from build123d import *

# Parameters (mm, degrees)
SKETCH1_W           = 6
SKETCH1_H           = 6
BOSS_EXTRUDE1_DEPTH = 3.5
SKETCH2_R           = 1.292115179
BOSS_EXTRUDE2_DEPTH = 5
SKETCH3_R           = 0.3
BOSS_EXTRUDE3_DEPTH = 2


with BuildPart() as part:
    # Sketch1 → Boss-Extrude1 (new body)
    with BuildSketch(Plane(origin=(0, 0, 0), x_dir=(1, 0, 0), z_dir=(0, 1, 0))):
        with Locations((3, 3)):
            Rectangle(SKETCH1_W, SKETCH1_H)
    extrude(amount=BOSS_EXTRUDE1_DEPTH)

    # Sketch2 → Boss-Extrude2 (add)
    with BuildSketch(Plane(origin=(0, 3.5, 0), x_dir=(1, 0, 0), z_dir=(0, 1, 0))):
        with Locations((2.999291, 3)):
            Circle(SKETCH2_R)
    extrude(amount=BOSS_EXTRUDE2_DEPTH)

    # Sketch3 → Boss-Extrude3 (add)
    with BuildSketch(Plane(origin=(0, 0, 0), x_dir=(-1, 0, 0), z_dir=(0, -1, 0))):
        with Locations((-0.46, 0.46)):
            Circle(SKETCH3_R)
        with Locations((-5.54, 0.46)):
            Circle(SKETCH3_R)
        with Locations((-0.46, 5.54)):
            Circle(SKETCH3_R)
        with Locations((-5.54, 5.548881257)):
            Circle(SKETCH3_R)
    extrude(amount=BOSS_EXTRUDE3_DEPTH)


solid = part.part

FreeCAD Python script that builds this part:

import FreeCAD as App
import Part
import Sketcher
Q = App.Units.Quantity

doc = App.newDocument("Part")
body = doc.addObject("PartDesign::Body", "Body")

# Sketch on XZ plane
sketch1 = body.newObject("Sketcher::SketchObject", "Sketch")
sketch1.AttachmentSupport = (doc.getObject("XZ_Plane"), [""])
sketch1.MapMode = "FlatFace"
sketch1.addGeometry([
    Part.LineSegment(App.Vector(0, -6, 0), App.Vector(0, 0, 0)),
    Part.LineSegment(App.Vector(0, 0, 0), App.Vector(6, 0, 0)),
    Part.LineSegment(App.Vector(6, 0, 0), App.Vector(6, -6, 0)),
    Part.LineSegment(App.Vector(6, -6, 0), App.Vector(0, -6, 0)),
], False)
sketch1.addConstraint([
    Sketcher.Constraint("Coincident", 0, 2, 1, 1),
    Sketcher.Constraint("Coincident", 1, 2, 2, 1),
    Sketcher.Constraint("Coincident", 2, 2, 3, 1),
    Sketcher.Constraint("Coincident", 3, 2, 0, 1),
    Sketcher.Constraint("Vertical", 0),
    Sketcher.Constraint("Horizontal", 1),
    Sketcher.Constraint("Vertical", 2),
    Sketcher.Constraint("Horizontal", 3),
    Sketcher.Constraint("Coincident", 0, 2, -1, 1),
    Sketcher.Constraint("Equal", 3, 0),
    Sketcher.Constraint("DistanceX", 1, 1, 1, 2, Q("6 mm")),
])
pad1 = body.newObject("PartDesign::Pad", "Pad")
pad1.Profile = sketch1
pad1.Length = 3.5
pad1.Reversed = True

# Sketch on XZ plane
sketch2 = body.newObject("Sketcher::SketchObject", "Sketch001")
sketch2.AttachmentSupport = (doc.getObject("XZ_Plane"), [""])
sketch2.MapMode = "FlatFace"
sketch2.AttachmentOffset = App.Placement(App.Vector(0, 0, -3.5), App.Rotation())
sketch2.addGeometry(Part.Circle(App.Vector(3, -3, 0), App.Vector(0, 0, 1), 1.3), False)
sketch2.addConstraint([
    Sketcher.Constraint("DistanceY", 0, 3, -1, 1, Q("3 mm")),
    Sketcher.Constraint("Diameter", 0, Q("2.58423 mm")),
    Sketcher.Constraint("DistanceX", -1, 1, 0, 3, Q("2.999291 mm")),
])
pad2 = body.newObject("PartDesign::Pad", "Pad001")
pad2.Profile = sketch2
pad2.Length = 5
pad2.Reversed = True

# Sketch on XZ plane
sketch3 = body.newObject("Sketcher::SketchObject", "Sketch002")
sketch3.AttachmentSupport = (doc.getObject("XZ_Plane"), [""])
sketch3.MapMode = "FlatFace"
sketch3.addGeometry([
    Part.Circle(App.Vector(0.46, -0.46, 0), App.Vector(0, 0, 1), 0.3),
    Part.Circle(App.Vector(5.54, -0.46, 0), App.Vector(0, 0, 1), 0.3),
    Part.Circle(App.Vector(0.46, -5.54, 0), App.Vector(0, 0, 1), 0.3),
    Part.Circle(App.Vector(5.54, -5.55, 0), App.Vector(0, 0, 1), 0.3),
], False)
sketch3.addConstraint([
    Sketcher.Constraint("Equal", 0, 1),
    Sketcher.Constraint("Equal", 1, 2),
    Sketcher.Constraint("Equal", 2, 3),
    Sketcher.Constraint("Horizontal", 0, 3, 1, 3),
    Sketcher.Constraint("Vertical", 0, 3, 2, 3),
    Sketcher.Constraint("Vertical", 1, 3, 3, 3),
    Sketcher.Constraint("Diameter", 0, Q("0.6 mm")),
    Sketcher.Constraint("DistanceX", -1, 1, 0, 3, Q("0.46 mm")),
    Sketcher.Constraint("DistanceY", 0, 3, -1, 1, Q("0.46 mm")),
    Sketcher.Constraint("DistanceX", -1, 1, 1, 3, Q("5.54 mm")),
    Sketcher.Constraint("DistanceY", 2, 3, -1, 1, Q("5.54 mm")),
    Sketcher.Constraint("DistanceY", 3, 3, -1, 1, Q("5.548881 mm")),
])
pad3 = body.newObject("PartDesign::Pad", "Pad002")
pad3.Profile = sketch3
pad3.Length = 2

doc.recompute()
